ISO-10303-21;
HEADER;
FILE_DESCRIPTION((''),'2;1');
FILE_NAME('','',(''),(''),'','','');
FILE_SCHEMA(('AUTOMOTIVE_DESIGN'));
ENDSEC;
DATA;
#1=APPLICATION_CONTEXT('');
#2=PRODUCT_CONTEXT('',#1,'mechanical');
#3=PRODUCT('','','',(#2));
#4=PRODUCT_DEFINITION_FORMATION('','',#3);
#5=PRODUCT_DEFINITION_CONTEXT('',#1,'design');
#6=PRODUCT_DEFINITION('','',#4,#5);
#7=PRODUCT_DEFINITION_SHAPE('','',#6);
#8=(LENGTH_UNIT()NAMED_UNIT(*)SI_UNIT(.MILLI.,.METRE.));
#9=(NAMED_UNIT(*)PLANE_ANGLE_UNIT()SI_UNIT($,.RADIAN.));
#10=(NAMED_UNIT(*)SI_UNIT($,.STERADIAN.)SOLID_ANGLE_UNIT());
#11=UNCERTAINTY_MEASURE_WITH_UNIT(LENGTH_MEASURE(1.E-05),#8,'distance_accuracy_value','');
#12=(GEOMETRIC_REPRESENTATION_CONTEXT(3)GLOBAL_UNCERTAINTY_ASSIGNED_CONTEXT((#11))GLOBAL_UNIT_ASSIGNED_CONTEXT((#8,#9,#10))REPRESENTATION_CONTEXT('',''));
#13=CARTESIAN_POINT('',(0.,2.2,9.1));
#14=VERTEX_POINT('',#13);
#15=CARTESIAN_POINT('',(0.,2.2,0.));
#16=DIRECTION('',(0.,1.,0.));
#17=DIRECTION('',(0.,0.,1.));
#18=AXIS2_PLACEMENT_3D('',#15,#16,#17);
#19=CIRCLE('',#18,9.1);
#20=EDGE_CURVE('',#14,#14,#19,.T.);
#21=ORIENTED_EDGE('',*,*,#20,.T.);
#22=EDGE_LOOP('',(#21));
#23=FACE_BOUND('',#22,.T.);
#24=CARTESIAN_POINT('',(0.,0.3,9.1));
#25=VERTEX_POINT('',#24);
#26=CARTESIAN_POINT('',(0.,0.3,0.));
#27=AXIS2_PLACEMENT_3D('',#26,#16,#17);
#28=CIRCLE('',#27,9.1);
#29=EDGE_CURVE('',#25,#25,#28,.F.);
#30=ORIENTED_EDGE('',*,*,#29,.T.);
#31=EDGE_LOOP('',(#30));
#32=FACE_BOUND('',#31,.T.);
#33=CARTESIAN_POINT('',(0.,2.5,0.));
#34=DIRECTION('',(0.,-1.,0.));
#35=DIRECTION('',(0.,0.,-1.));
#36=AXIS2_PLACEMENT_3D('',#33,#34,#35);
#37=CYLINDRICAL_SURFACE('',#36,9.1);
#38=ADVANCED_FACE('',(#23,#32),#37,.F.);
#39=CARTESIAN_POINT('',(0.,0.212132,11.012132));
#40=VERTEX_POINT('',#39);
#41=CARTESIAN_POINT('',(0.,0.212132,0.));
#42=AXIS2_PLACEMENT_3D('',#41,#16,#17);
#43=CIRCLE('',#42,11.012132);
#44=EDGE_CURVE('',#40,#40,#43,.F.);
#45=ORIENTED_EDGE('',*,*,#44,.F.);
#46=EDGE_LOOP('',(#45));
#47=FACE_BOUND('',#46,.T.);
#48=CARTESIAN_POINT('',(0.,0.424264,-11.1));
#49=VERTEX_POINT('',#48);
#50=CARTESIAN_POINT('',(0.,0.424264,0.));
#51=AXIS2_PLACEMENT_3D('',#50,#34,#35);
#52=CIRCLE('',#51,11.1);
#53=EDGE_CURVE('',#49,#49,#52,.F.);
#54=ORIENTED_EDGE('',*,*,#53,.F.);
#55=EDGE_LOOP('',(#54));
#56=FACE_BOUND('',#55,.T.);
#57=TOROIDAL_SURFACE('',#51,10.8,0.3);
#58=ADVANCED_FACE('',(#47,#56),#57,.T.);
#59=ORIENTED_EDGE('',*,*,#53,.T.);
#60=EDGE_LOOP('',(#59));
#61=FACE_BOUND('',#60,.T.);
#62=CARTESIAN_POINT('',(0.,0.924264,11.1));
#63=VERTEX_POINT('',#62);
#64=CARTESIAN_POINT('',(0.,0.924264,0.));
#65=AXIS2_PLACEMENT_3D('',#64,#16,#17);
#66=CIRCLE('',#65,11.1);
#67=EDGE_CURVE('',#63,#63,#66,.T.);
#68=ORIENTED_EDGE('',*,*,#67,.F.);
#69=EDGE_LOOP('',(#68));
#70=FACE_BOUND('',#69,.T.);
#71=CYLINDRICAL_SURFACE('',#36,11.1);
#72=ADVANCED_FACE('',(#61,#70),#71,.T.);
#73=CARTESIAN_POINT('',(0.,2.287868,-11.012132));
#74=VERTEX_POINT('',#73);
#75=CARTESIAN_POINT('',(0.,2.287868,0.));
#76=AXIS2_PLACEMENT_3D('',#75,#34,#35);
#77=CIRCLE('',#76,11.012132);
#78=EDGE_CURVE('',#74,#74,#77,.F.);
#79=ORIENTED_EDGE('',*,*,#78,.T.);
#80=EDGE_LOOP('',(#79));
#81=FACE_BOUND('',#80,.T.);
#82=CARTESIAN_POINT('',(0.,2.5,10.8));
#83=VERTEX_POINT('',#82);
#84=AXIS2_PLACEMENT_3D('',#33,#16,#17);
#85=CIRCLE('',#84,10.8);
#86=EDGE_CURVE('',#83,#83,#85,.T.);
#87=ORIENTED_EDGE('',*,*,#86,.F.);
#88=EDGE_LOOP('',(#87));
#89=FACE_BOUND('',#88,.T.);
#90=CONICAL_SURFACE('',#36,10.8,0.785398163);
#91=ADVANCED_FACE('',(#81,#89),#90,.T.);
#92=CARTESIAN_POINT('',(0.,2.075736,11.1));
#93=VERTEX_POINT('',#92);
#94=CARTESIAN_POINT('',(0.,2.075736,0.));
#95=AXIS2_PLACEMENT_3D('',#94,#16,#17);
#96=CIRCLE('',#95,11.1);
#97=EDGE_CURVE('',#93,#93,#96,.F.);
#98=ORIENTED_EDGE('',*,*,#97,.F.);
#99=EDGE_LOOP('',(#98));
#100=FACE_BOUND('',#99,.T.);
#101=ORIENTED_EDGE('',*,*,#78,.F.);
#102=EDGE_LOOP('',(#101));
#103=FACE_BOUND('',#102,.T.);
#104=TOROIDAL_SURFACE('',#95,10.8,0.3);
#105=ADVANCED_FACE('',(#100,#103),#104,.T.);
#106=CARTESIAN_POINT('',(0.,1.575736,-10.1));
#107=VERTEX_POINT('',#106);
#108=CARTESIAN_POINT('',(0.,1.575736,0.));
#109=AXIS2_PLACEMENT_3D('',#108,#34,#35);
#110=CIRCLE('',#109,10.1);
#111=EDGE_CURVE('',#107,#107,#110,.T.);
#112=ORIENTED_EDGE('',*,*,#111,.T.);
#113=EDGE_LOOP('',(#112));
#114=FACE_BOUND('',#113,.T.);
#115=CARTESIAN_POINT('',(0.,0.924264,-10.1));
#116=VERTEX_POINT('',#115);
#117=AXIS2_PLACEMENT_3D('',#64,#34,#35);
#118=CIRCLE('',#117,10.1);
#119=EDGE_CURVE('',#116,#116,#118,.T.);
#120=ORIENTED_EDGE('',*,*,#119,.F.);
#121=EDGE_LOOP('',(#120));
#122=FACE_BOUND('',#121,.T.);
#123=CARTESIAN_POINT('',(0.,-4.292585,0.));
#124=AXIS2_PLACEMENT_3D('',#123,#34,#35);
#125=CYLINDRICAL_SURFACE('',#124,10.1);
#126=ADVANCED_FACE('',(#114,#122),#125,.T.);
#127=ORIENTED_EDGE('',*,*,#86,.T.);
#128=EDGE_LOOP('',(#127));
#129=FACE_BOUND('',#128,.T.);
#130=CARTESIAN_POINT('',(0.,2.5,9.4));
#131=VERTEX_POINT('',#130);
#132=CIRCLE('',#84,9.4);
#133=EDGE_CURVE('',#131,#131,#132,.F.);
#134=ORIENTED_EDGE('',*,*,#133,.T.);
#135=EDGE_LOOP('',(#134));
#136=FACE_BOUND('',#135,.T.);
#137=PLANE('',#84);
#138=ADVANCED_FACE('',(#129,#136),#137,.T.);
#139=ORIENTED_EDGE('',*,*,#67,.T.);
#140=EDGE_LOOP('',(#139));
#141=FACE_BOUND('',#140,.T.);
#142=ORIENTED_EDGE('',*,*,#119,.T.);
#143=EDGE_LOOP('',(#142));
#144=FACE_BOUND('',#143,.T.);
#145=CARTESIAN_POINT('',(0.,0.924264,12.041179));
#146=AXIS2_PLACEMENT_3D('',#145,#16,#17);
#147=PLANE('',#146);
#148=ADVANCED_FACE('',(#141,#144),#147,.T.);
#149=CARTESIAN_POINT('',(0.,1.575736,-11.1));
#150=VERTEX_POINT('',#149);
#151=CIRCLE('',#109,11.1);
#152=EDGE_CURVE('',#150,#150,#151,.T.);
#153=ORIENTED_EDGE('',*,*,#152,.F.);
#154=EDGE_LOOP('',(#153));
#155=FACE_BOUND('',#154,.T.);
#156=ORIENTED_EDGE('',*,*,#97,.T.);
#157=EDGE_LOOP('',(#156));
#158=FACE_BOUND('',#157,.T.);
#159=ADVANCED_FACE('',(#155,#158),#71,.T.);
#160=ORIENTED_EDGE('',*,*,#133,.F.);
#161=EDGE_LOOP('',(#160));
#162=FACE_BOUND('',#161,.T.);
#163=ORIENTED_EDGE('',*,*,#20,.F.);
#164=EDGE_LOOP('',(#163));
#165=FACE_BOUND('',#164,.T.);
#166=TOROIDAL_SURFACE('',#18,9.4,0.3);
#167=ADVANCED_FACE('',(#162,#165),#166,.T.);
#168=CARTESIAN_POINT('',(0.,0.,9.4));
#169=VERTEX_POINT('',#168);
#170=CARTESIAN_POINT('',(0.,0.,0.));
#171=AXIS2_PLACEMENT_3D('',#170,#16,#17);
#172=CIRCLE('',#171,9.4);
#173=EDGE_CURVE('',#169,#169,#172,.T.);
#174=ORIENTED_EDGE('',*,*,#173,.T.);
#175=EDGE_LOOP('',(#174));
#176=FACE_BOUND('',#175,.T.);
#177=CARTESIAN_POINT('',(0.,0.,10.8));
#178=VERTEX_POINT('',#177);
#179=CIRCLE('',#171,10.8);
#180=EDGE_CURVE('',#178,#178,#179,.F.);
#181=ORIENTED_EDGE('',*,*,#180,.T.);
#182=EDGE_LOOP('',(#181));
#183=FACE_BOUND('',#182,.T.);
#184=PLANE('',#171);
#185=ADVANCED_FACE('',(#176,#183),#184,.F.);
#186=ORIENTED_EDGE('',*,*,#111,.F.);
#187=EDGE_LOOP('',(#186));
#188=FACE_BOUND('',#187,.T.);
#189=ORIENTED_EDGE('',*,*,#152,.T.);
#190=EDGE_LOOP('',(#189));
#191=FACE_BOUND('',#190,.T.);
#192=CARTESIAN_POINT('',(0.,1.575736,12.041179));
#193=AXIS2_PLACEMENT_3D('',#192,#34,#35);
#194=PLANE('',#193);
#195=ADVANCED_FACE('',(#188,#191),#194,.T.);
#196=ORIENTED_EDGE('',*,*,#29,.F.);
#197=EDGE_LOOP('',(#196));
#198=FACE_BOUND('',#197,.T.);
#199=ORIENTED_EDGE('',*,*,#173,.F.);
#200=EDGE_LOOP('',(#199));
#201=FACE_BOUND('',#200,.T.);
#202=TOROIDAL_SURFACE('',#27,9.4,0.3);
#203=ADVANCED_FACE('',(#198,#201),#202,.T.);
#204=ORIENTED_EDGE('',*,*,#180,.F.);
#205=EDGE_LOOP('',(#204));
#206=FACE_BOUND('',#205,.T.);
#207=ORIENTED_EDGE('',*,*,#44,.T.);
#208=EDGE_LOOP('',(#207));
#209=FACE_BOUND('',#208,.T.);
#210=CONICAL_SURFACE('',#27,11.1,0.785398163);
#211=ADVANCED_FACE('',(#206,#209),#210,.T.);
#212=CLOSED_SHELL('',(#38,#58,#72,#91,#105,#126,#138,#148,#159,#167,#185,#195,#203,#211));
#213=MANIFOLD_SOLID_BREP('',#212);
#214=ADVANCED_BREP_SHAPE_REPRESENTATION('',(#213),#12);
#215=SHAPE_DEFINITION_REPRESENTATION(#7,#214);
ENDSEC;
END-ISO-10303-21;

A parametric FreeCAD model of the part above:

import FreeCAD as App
import Part
import Sketcher
from FreeCAD import Vector


def edges_at(feature, points):
    """Names of the edges that pass closest to the given points."""
    edges = feature.Shape.Edges
    near = lambda p: min(range(len(edges)), key=lambda i: edges[i].distToShape(Part.Vertex(*p))[0])
    return sorted({f"Edge{near(p) + 1}" for p in points})


def add_polygon(sketch, points):
    """Adds a closed chain of lines whose ends are joined by coincident constraints."""
    first, n = sketch.GeometryCount, len(points)
    for a, b in zip(points, points[1:] + points[:1]):
        sketch.addGeometry(Part.LineSegment(App.Vector(*a, 0), App.Vector(*b, 0)), False)
    for i in range(n):
        sketch.addConstraint(Sketcher.Constraint("Coincident", first + i, 2, first + (i + 1) % n, 1))

doc = App.newDocument("Part")
params = doc.addObject("Spreadsheet::Sheet", "Params")
for row, (alias, value) in enumerate([
    ("sketch1_diameter", "22.2 mm"),
    ("sketch1_diameter2", "18.2 mm"),
    ("pad1_length", "2.5 mm"),
    ("chamfer_size", "0.3 mm"),
    ("fillet_radius", "0.3 mm"),
    ("fillet2_radius", "0.3 mm"),
    ("groove_angle", "360 deg"),
], start=1):
    params.set(f"A{row}", alias)
    params.set(f"B{row}", "=" + value)
    params.setAlias(f"B{row}", alias)

body = doc.addObject("PartDesign::Body", "Body")

# Sketch on XZ plane
sketch1 = doc.addObject("Sketcher::SketchObject", "Sketch")
body.addObject(sketch1)
sketch1.AttachmentSupport = (doc.XZ_Plane, [""])
sketch1.MapMode = "FlatFace"
sketch1.addGeometry([
    Part.Circle(Vector(0, 0, 0), Vector(0, 0, 1), 11),
    Part.Circle(Vector(0, 0, 0), Vector(0, 0, 1), 9),
], False)
sketch1.addConstraint([
    Sketcher.Constraint("Coincident", 0, 3, -1, 1),
    Sketcher.Constraint("Coincident", 1, 3, -1, 1),
    Sketcher.Constraint("Diameter", 0, 22.2),
    Sketcher.Constraint("Diameter", 1, 18.2),
])
sketch1.setExpression("Constraints[2]", "Params.sketch1_diameter")
sketch1.setExpression("Constraints[3]", "Params.sketch1_diameter2")
pad1 = doc.addObject("PartDesign::Pad", "Pad")
body.addObject(pad1)
pad1.Profile = sketch1
pad1.setExpression("Length", "Params.pad1_length")
pad1.Reversed = True
doc.recompute()

chamfer = doc.addObject("PartDesign::Chamfer", "Chamfer")
body.addObject(chamfer)
chamfer.Base = (pad1, edges_at(pad1, [(0, 0, -11.1), (0, 2.5, -11.1)]))
chamfer.setExpression("Size", "Params.chamfer_size")
doc.recompute()

fillet = doc.addObject("PartDesign::Fillet", "Fillet")
body.addObject(fillet)
fillet.Base = (chamfer, edges_at(chamfer, [(0, 0, -9.1), (0, 2.5, -9.1)]))
fillet.setExpression("Radius", "Params.fillet_radius")
doc.recompute()

fillet2 = doc.addObject("PartDesign::Fillet", "Fillet001")
body.addObject(fillet2)
fillet2.Base = (fillet, edges_at(fillet, [(0, 0.3, -11.1), (0, 2.2, -11.1)]))
fillet2.setExpression("Radius", "Params.fillet2_radius")

# Sketch on YZ plane
sketch2 = doc.addObject("Sketcher::SketchObject", "Sketch001")
body.addObject(sketch2)
sketch2.AttachmentSupport = (doc.YZ_Plane, [""])
sketch2.MapMode = "FlatFace"
add_polygon(sketch2, [(1.6, 12), (0.9, 12), (0.9, 10.1), (1.6, 10.1)])  # lines 0-3
sketch2.addConstraint([
    Sketcher.Constraint("Horizontal", 0),
    Sketcher.Constraint("Vertical", 1),
    Sketcher.Constraint("Horizontal", 2),
    Sketcher.Constraint("Vertical", 3),
    Sketcher.Constraint("DistanceY", -1, 1, 1, 2, 10.1),
    Sketcher.Constraint("DistanceX", 0, 2, 0, 1, 0.651472),
    Sketcher.Constraint("DistanceY", 1, 2, 1, 1, 1.941179),
    Sketcher.Constraint("DistanceX", -1, 1, 0, 2, 0.924264),
])
groove = doc.addObject("PartDesign::Groove", "Groove")
body.addObject(groove)
groove.Profile = sketch2
groove.ReferenceAxis = (sketch2, ["H_Axis"])
groove.setExpression("Angle", "Params.groove_angle")

doc.recompute()
